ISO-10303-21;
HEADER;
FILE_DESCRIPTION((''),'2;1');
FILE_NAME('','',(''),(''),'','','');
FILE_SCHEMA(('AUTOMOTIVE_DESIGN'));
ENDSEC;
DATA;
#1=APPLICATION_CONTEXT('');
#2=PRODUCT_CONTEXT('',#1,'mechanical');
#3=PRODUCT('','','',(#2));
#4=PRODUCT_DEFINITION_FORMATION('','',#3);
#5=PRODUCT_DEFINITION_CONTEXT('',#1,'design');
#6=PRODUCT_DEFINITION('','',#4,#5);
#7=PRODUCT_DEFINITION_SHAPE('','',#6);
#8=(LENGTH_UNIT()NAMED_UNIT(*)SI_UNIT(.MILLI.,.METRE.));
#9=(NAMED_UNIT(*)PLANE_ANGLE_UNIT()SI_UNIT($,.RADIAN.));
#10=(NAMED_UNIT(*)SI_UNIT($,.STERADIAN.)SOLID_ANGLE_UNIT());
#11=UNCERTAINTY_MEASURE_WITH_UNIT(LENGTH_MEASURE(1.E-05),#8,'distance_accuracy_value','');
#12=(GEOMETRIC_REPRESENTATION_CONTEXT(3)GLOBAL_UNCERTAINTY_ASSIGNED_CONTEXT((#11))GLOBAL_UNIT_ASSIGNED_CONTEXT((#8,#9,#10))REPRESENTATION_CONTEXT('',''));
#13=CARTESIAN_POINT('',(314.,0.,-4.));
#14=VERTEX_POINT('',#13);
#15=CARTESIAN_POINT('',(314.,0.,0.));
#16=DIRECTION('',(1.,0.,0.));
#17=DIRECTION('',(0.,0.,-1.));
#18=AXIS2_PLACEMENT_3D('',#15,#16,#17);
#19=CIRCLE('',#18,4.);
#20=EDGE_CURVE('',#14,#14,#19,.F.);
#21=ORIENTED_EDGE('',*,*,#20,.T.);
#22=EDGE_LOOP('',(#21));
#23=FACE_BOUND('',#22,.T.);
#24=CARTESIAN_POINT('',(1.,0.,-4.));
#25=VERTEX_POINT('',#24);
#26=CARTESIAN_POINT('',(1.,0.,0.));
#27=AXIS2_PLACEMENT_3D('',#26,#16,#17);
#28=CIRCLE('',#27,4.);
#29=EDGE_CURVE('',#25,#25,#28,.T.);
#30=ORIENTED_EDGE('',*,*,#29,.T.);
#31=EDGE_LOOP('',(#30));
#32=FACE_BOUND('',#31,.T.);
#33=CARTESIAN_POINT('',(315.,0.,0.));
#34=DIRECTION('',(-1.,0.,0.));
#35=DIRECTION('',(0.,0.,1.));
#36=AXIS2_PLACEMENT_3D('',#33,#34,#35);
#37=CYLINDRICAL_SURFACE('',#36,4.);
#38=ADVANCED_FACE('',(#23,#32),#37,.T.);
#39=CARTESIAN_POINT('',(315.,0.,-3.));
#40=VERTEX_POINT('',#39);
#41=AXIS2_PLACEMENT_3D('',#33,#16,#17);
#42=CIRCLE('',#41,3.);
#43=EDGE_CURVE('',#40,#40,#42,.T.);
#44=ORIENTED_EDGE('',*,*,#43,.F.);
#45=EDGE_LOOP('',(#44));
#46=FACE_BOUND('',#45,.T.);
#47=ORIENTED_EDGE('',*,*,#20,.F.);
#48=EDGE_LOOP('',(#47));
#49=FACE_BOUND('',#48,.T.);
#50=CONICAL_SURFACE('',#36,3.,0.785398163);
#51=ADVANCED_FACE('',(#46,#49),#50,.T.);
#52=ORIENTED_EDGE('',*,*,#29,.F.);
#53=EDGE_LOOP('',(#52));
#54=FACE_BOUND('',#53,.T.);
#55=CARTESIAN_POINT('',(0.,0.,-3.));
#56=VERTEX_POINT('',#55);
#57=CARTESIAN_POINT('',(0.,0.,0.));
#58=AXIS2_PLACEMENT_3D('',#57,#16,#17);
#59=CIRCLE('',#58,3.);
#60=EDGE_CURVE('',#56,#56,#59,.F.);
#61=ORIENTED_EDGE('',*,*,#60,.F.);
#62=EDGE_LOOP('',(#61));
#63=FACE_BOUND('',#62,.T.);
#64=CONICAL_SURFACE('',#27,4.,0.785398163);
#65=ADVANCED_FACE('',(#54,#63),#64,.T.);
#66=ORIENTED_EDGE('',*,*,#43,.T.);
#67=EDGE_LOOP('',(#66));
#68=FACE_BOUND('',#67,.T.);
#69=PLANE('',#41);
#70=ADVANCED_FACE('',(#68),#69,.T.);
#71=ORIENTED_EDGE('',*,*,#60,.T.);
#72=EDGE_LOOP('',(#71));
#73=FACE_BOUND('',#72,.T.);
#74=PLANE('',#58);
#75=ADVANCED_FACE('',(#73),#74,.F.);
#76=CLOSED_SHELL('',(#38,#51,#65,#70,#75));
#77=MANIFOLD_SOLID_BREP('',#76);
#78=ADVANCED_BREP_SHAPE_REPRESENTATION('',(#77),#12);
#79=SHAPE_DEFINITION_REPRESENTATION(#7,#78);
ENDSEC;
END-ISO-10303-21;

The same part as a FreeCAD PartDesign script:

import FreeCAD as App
import Part
import Sketcher

V = App.Vector
Q = App.Units.Quantity


def edges_at(feature, points):
    """Names of the edges that pass closest to the given points."""
    edges = feature.Shape.Edges
    near = lambda p: min(range(len(edges)), key=lambda i: edges[i].distToShape(Part.Vertex(*p))[0])
    return sorted({f"Edge{near(p) + 1}" for p in points})

doc = App.newDocument("Part")
params = doc.addObject("Spreadsheet::Sheet", "Params")
for row, (alias, value) in enumerate([
    ("sketch1_diameter", "8 mm"),
    ("pad1_length", "315 mm"),
    ("chamfer_size", "1 mm"),
], start=1):
    params.set(f"A{row}", alias)
    params.set(f"B{row}", "=" + value)
    params.setAlias(f"B{row}", alias)

body = doc.addObject("PartDesign::Body", "Body")

# Sketch on YZ plane
sketch1 = doc.addObject("Sketcher::SketchObject", "Sketch")
body.addObject(sketch1)
sketch1.AttachmentSupport = (doc.YZ_Plane, [""])
sketch1.MapMode = "FlatFace"
sketch1.addGeometry(Part.Circle(V(0, 0, 0), V(0, 0, 1), 4), False)
sketch1.addConstraint(Sketcher.Constraint("Coincident", 0, 3, -1, 1))
sketch1.addConstraint(Sketcher.Constraint("Diameter", 0, Q("8 mm")))
sketch1.setExpression("Constraints[1]", "Params.sketch1_diameter")
pad1 = doc.addObject("PartDesign::Pad", "Pad")
body.addObject(pad1)
pad1.Profile = sketch1
pad1.setExpression("Length", "Params.pad1_length")
doc.recompute()

chamfer = doc.addObject("PartDesign::Chamfer", "Chamfer")
body.addObject(chamfer)
chamfer.Base = (pad1, edges_at(pad1, [(0, 0, 4), (315, 0, 4)]))
chamfer.setExpression("Size", "Params.chamfer_size")

doc.recompute()
